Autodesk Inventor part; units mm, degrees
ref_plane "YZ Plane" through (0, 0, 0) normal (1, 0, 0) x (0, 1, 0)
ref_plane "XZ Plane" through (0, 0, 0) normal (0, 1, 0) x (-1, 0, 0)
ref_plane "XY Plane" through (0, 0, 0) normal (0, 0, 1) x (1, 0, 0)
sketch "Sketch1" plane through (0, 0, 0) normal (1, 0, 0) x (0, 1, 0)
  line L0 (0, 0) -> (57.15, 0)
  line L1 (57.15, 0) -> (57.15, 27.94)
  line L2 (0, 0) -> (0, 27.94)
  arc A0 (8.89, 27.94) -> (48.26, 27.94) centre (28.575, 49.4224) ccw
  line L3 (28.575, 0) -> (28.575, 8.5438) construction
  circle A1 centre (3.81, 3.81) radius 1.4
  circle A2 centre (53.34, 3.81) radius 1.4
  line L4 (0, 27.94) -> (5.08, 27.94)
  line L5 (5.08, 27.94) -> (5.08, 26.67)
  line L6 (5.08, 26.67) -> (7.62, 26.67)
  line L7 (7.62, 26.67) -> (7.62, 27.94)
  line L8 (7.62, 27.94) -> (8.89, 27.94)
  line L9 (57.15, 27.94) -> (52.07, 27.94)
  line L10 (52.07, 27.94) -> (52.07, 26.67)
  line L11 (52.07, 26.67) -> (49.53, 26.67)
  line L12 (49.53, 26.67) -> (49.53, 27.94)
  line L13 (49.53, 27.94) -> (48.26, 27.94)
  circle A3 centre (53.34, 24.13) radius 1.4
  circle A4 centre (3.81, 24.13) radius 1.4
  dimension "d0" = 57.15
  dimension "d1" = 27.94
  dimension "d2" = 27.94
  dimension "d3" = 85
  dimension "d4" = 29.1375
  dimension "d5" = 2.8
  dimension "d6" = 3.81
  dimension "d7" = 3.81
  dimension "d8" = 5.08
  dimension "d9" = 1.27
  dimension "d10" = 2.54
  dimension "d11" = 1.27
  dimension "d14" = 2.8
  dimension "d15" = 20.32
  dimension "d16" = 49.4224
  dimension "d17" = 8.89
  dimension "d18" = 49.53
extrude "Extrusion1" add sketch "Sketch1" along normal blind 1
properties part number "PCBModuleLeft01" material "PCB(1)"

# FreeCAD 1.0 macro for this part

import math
import FreeCAD as App
import Part
import Sketcher
Q = App.Units.Quantity

doc = App.newDocument("Part")
params = doc.addObject("Spreadsheet::Sheet", "Params")
for row, (alias, value) in enumerate([
    ("sketch1_width", "0.2 in"),
    ("sketch1_width2", "0.1 in"),
    ("sketch1_height", "1.1 in"),
    ("sketch1_width3", "2.25 in"),
    ("sketch1_width4", "0.05 in"),
    ("pad1_length", "1 mm"),
], start=1):
    params.set(f"A{row}", alias)
    params.set(f"B{row}", "=" + value)
    params.setAlias(f"B{row}", alias)

body = doc.addObject("PartDesign::Body", "Body")

# Sketch on YZ plane
sketch1 = body.newObject("Sketcher::SketchObject", "Sketch")
sketch1.AttachmentSupport = (doc.getObject("YZ_Plane"), [""])
sketch1.MapMode = "FlatFace"
sketch1.addGeometry([
    Part.LineSegment(App.Vector(0, 27.9, 0), App.Vector(0, 0, 0)),  # 0
    Part.LineSegment(App.Vector(0, 0, 0), App.Vector(57.1, 0, 0)),  # 1
    Part.LineSegment(App.Vector(57.1, 0, 0), App.Vector(57.1, 27.9, 0)),  # 2
    Part.LineSegment(App.Vector(57.1, 27.9, 0), App.Vector(52.1, 27.9, 0)),  # 3
    Part.LineSegment(App.Vector(52.1, 27.9, 0), App.Vector(52.1, 26.7, 0)),  # 4
    Part.LineSegment(App.Vector(52.1, 26.7, 0), App.Vector(49.5, 26.7, 0)),  # 5
    Part.LineSegment(App.Vector(49.5, 26.7, 0), App.Vector(49.5, 27.9, 0)),  # 6
    Part.LineSegment(App.Vector(49.5, 27.9, 0), App.Vector(48.3, 27.9, 0)),  # 7
    Part.ArcOfCircle(Part.Circle(App.Vector(28.6, 49.4, 0), App.Vector(0, 0, 1), 29.1), math.radians(-133), math.radians(-47)),  # 8
    Part.LineSegment(App.Vector(8.9, 27.9, 0), App.Vector(7.6, 27.9, 0)),  # 9
    Part.LineSegment(App.Vector(7.6, 27.9, 0), App.Vector(7.6, 26.7, 0)),  # 10
    Part.LineSegment(App.Vector(7.6, 26.7, 0), App.Vector(5.1, 26.7, 0)),  # 11
    Part.LineSegment(App.Vector(5.1, 26.7, 0), App.Vector(5.1, 27.9, 0)),  # 12
    Part.LineSegment(App.Vector(5.1, 27.9, 0), App.Vector(0, 27.9, 0)),  # 13
    Part.Circle(App.Vector(3.8, 3.8, 0), App.Vector(0, 0, 1), 1.4),  # 14
    Part.Circle(App.Vector(53.3, 3.8, 0), App.Vector(0, 0, 1), 1.4),  # 15
    Part.Circle(App.Vector(3.8, 24.1, 0), App.Vector(0, 0, 1), 1.4),  # 16
    Part.Circle(App.Vector(53.3, 24.1, 0), App.Vector(0, 0, 1), 1.4),  # 17
], False)
sketch1.addConstraint([
    Sketcher.Constraint("Coincident", 0, 2, 1, 1),
    Sketcher.Constraint("Coincident", 1, 2, 2, 1),
    Sketcher.Constraint("Coincident", 2, 2, 3, 1),
    Sketcher.Constraint("Coincident", 3, 2, 4, 1),
    Sketcher.Constraint("Coincident", 4, 2, 5, 1),
    Sketcher.Constraint("Coincident", 5, 2, 6, 1),
    Sketcher.Constraint("Coincident", 6, 2, 7, 1),
    Sketcher.Constraint("Coincident", 7, 2, 8, 2),
    Sketcher.Constraint("Coincident", 8, 1, 9, 1),
    Sketcher.Constraint("Coincident", 9, 2, 10, 1),
    Sketcher.Constraint("Coincident", 10, 2, 11, 1),
    Sketcher.Constraint("Coincident", 11, 2, 12, 1),
    Sketcher.Constraint("Coincident", 12, 2, 13, 1),
    Sketcher.Constraint("Coincident", 13, 2, 0, 1),
    Sketcher.Constraint("Vertical", 0),
    Sketcher.Constraint("Horizontal", 1),
    Sketcher.Constraint("Vertical", 2),
    Sketcher.Constraint("Horizontal", 3),
    Sketcher.Constraint("Vertical", 4),
    Sketcher.Constraint("Horizontal", 5),
    Sketcher.Constraint("Vertical", 6),
    Sketcher.Constraint("Horizontal", 7),
    Sketcher.Constraint("Horizontal", 9),
    Sketcher.Constraint("Vertical", 10),
    Sketcher.Constraint("Horizontal", 11),
    Sketcher.Constraint("Vertical", 12),
    Sketcher.Constraint("Horizontal", 13),
    Sketcher.Constraint("Coincident", 0, 2, -1, 1),
    Sketcher.Constraint("Equal", 14, 15),
    Sketcher.Constraint("Equal", 15, 16),
    Sketcher.Constraint("Equal", 16, 17),
    Sketcher.Constraint("Horizontal", 14, 3, 15, 3),
    Sketcher.Constraint("Horizontal", 16, 3, 17, 3),
    Sketcher.Constraint("Horizontal", 3, 2, 6, 2),
    Sketcher.Constraint("Horizontal", 7, 2, 8, 1),
    Sketcher.Constraint("Horizontal", 5, 2, 10, 2),
    Sketcher.Constraint("Horizontal", 9, 2, 12, 2),
    Sketcher.Constraint("Vertical", 14, 3, 16, 3),
    Sketcher.Constraint("Vertical", 15, 3, 17, 3),
    Sketcher.Constraint("Equal", 7, 9),
    Sketcher.Constraint("Equal", 5, 11),
    Sketcher.Constraint("Equal", 3, 13),
    Sketcher.Constraint("Equal", 9, 4),
    Sketcher.Constraint("DistanceX", 3, 2, 3, 1, Q("0.2 in")),
    Sketcher.Constraint("DistanceX", 5, 2, 5, 1, Q("0.1 in")),
    Sketcher.Constraint("DistanceY", 0, 2, 0, 1, Q("1.1 in")),
    Sketcher.Constraint("DistanceX", 1, 1, 1, 2, Q("2.25 in")),
    Sketcher.Constraint("DistanceX", 7, 2, 7, 1, Q("0.05 in")),
    Sketcher.Constraint("DistanceY", 14, 3, 16, 3, Q("0.8 in")),
    Sketcher.Constraint("DistanceY", 17, 3, 4, 2, Q("0.1 in")),
    Sketcher.Constraint("DistanceX", 7, 2, 17, 3, Q("0.2 in")),
    Sketcher.Constraint("DistanceX", 16, 3, 8, 1, Q("0.2 in")),
    Sketcher.Constraint("Diameter", 14, Q("2.8 mm")),
    Sketcher.Constraint("Radius", 8, Q("29.1375 mm")),
])
sketch1.setExpression("Constraints[43]", "Params.sketch1_width")
sketch1.setExpression("Constraints[44]", "Params.sketch1_width2")
sketch1.setExpression("Constraints[45]", "Params.sketch1_height")
sketch1.setExpression("Constraints[46]", "Params.sketch1_width3")
sketch1.setExpression("Constraints[47]", "Params.sketch1_width4")
pad1 = body.newObject("PartDesign::Pad", "Pad")
pad1.Profile = sketch1
pad1.setExpression("Length", "Params.pad1_length")

doc.recompute()
